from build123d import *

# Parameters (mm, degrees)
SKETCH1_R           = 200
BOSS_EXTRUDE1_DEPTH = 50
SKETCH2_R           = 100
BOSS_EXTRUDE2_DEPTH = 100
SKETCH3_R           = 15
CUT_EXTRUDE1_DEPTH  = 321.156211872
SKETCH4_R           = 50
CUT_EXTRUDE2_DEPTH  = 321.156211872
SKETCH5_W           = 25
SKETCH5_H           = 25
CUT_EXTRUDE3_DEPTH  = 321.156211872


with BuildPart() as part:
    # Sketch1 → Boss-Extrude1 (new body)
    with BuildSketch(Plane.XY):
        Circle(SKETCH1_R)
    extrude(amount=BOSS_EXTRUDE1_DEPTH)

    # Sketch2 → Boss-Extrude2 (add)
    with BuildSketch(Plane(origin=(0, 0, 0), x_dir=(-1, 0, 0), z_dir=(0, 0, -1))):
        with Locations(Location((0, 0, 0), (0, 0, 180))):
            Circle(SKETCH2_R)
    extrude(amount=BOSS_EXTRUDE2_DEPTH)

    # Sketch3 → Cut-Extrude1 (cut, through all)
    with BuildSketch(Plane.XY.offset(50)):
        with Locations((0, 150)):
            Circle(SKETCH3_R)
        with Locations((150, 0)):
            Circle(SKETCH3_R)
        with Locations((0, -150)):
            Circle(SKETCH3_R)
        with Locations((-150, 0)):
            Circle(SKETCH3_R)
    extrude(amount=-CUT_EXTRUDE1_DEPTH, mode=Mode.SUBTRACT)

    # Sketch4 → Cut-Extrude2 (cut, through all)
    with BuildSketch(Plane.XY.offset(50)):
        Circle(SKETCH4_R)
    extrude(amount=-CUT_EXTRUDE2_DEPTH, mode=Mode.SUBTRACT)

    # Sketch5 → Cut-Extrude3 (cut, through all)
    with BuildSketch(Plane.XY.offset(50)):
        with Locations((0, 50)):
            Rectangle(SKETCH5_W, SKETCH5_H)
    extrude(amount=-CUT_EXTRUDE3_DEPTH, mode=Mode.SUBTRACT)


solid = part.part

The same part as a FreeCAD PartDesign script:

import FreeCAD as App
import Part
import Sketcher
from FreeCAD import Vector
Q = App.Units.Quantity


def add_polygon(sketch, points):
    """Adds a closed chain of lines whose ends are joined by coincident constraints."""
    first, n = sketch.GeometryCount, len(points)
    for a, b in zip(points, points[1:] + points[:1]):
        sketch.addGeometry(Part.LineSegment(App.Vector(*a, 0), App.Vector(*b, 0)), False)
    for i in range(n):
        sketch.addConstraint(Sketcher.Constraint("Coincident", first + i, 2, first + (i + 1) % n, 1))

doc = App.newDocument("Part")
body = doc.addObject("PartDesign::Body", "Body")

# Sketch on XY plane
sketch1 = body.newObject("Sketcher::SketchObject", "Sketch")
sketch1.AttachmentSupport = (doc.getObject("XY_Plane"), [""])
sketch1.MapMode = "FlatFace"
sketch1.addGeometry(Part.Circle(Vector(0, 0, 0), Vector(0, 0, 1), 200), False)
sketch1.addConstraint(Sketcher.Constraint("Coincident", 0, 3, -1, 1))
sketch1.addConstraint(Sketcher.Constraint("Diameter", 0, Q("400 mm")))
pad1 = body.newObject("PartDesign::Pad", "Pad")
pad1.Profile = sketch1
pad1.Length = 50

# Sketch on XY plane
sketch2 = body.newObject("Sketcher::SketchObject", "Sketch001")
sketch2.AttachmentSupport = (doc.getObject("XY_Plane"), [""])
sketch2.MapMode = "FlatFace"
sketch2.addGeometry(Part.Circle(Vector(0, 0, 0), Vector(0, 0, 1), 100), False)
sketch2.addConstraint(Sketcher.Constraint("Coincident", 0, 3, -1, 1))
sketch2.addConstraint(Sketcher.Constraint("Diameter", 0, Q("200 mm")))
pad2 = body.newObject("PartDesign::Pad", "Pad001")
pad2.Profile = sketch2
pad2.Length = 100
pad2.Reversed = True

# Sketch on XY plane
sketch3 = body.newObject("Sketcher::SketchObject", "Sketch002")
sketch3.AttachmentSupport = (doc.getObject("XY_Plane"), [""])
sketch3.MapMode = "FlatFace"
sketch3.AttachmentOffset = App.Placement(Vector(0, 0, 50), App.Rotation())
sketch3.addGeometry(Part.Circle(Vector(0, 150, 0), Vector(0, 0, 1), 15), False)
sketch3.addGeometry(Part.Circle(Vector(150, 0, 0), Vector(0, 0, 1), 15), False)
sketch3.addGeometry(Part.Circle(Vector(0, -150, 0), Vector(0, 0, 1), 15), False)
sketch3.addGeometry(Part.Circle(Vector(-150, 0, 0), Vector(0, 0, 1), 15), False)
sketch3.addConstraint(Sketcher.Constraint("Equal", 0, 1))
sketch3.addConstraint(Sketcher.Constraint("Equal", 1, 2))
sketch3.addConstraint(Sketcher.Constraint("Equal", 2, 3))
sketch3.addConstraint(Sketcher.Constraint("Symmetric", 0, 3, 2, 3, -1, 1))
sketch3.addConstraint(Sketcher.Constraint("Symmetric", 1, 3, 3, 3, -1, 1))
sketch3.addConstraint(Sketcher.Constraint("PointOnObject", 0, 3, -2))
sketch3.addConstraint(Sketcher.Constraint("PointOnObject", 1, 3, -1))
sketch3.addConstraint(Sketcher.Constraint("Diameter", 0, Q("30 mm")))
sketch3.addConstraint(Sketcher.Constraint("DistanceY", -1, 1, 0, 3, Q("150 mm")))
sketch3.addConstraint(Sketcher.Constraint("DistanceX", -1, 1, 1, 3, Q("150 mm")))
pocket1 = body.newObject("PartDesign::Pocket", "Pocket")
pocket1.Profile = sketch3
pocket1.Type = "ThroughAll"

# Sketch on XY plane
sketch4 = body.newObject("Sketcher::SketchObject", "Sketch003")
sketch4.AttachmentSupport = (doc.getObject("XY_Plane"), [""])
sketch4.MapMode = "FlatFace"
sketch4.AttachmentOffset = App.Placement(Vector(0, 0, 50), App.Rotation())
sketch4.addGeometry(Part.Circle(Vector(0, 0, 0), Vector(0, 0, 1), 50), False)
sketch4.addConstraint(Sketcher.Constraint("Coincident", 0, 3, -1, 1))
sketch4.addConstraint(Sketcher.Constraint("Diameter", 0, Q("100 mm")))
pocket2 = body.newObject("PartDesign::Pocket", "Pocket001")
pocket2.Profile = sketch4
pocket2.Type = "ThroughAll"

# Sketch on XY plane
sketch5 = body.newObject("Sketcher::SketchObject", "Sketch004")
sketch5.AttachmentSupport = (doc.getObject("XY_Plane"), [""])
sketch5.MapMode = "FlatFace"
sketch5.AttachmentOffset = App.Placement(Vector(0, 0, 50), App.Rotation())
add_polygon(sketch5, [(-12, 62), (-12, 38), (12, 38), (12, 62)])  # lines 0-3
sketch5.addConstraint(Sketcher.Constraint("Vertical", 0))
sketch5.addConstraint(Sketcher.Constraint("Horizontal", 1))
sketch5.addConstraint(Sketcher.Constraint("Vertical", 2))
sketch5.addConstraint(Sketcher.Constraint("Horizontal", 3))
sketch5.addConstraint(Sketcher.Constraint("Equal", 3, 0))
sketch5.addConstraint(Sketcher.Constraint("DistanceX", 1, 1, 1, 2, Q("25 mm")))
sketch5.addConstraint(Sketcher.Constraint("DistanceX", 0, 2, -1, 1, Q("12.5 mm")))
sketch5.addConstraint(Sketcher.Constraint("DistanceY", -1, 1, 0, 2, Q("37.5 mm")))
pocket3 = body.newObject("PartDesign::Pocket", "Pocket002")
pocket3.Profile = sketch5
pocket3.Type = "ThroughAll"

doc.recompute()
